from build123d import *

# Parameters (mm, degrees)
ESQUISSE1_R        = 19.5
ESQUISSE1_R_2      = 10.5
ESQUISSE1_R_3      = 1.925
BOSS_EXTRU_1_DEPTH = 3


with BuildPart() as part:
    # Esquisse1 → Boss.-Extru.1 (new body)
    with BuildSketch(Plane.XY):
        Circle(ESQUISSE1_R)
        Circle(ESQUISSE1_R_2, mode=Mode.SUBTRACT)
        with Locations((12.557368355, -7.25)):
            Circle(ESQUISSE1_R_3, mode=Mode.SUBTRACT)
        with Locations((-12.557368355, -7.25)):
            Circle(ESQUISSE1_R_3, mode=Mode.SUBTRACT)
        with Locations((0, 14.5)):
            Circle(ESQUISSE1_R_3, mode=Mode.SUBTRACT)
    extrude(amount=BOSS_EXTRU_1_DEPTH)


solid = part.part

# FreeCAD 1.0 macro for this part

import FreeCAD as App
import Part
import Sketcher

V = App.Vector
Q = App.Units.Quantity

doc = App.newDocument("Part")
body = doc.addObject("PartDesign::Body", "Body")

# Sketch on XY plane
sketch1 = doc.addObject("Sketcher::SketchObject", "Sketch")
body.addObject(sketch1)
sketch1.AttachmentSupport = (doc.XY_Plane, [""])
sketch1.MapMode = "FlatFace"
sketch1.addGeometry(Part.Circle(V(0, 0, 0), V(0, 0, 1), 19.5), False)
sketch1.addGeometry(Part.Circle(V(-12.6, -7.2, 0), V(0, 0, 1), 1.9), False)
sketch1.addGeometry(Part.Circle(V(12.6, -7.2, 0), V(0, 0, 1), 1.9), False)
sketch1.addGeometry(Part.Circle(V(0, 0, 0), V(0, 0, 1), 10.5), False)
sketch1.addGeometry(Part.Circle(V(0, 14.5, 0), V(0, 0, 1), 1.9), False)
sketch1.addConstraint(Sketcher.Constraint("Coincident", 0, 3, -1, 1))
sketch1.addConstraint(Sketcher.Constraint("Coincident", 3, 3, -1, 1))
sketch1.addConstraint(Sketcher.Constraint("Equal", 1, 2))
sketch1.addConstraint(Sketcher.Constraint("Equal", 2, 4))
sketch1.addConstraint(Sketcher.Constraint("Symmetric", 1, 3, 2, 3, -2))
sketch1.addConstraint(Sketcher.Constraint("PointOnObject", 4, 3, -2))
sketch1.addConstraint(Sketcher.Constraint("Diameter", 0, Q("39 mm")))
sketch1.addConstraint(Sketcher.Constraint("Diameter", 3, Q("21 mm")))
sketch1.addConstraint(Sketcher.Constraint("Diameter", 1, Q("3.85 mm")))
sketch1.addConstraint(Sketcher.Constraint("DistanceY", -1, 1, 4, 3, Q("14.5 mm")))
sketch1.addConstraint(Sketcher.Constraint("DistanceY", 1, 3, -1, 1, Q("7.25 mm")))
sketch1.addConstraint(Sketcher.Constraint("DistanceX", 1, 3, -1, 1, Q("12.557368 mm")))
pad1 = doc.addObject("PartDesign::Pad", "Pad")
body.addObject(pad1)
pad1.Profile = sketch1
pad1.Length = 3

doc.recompute()
